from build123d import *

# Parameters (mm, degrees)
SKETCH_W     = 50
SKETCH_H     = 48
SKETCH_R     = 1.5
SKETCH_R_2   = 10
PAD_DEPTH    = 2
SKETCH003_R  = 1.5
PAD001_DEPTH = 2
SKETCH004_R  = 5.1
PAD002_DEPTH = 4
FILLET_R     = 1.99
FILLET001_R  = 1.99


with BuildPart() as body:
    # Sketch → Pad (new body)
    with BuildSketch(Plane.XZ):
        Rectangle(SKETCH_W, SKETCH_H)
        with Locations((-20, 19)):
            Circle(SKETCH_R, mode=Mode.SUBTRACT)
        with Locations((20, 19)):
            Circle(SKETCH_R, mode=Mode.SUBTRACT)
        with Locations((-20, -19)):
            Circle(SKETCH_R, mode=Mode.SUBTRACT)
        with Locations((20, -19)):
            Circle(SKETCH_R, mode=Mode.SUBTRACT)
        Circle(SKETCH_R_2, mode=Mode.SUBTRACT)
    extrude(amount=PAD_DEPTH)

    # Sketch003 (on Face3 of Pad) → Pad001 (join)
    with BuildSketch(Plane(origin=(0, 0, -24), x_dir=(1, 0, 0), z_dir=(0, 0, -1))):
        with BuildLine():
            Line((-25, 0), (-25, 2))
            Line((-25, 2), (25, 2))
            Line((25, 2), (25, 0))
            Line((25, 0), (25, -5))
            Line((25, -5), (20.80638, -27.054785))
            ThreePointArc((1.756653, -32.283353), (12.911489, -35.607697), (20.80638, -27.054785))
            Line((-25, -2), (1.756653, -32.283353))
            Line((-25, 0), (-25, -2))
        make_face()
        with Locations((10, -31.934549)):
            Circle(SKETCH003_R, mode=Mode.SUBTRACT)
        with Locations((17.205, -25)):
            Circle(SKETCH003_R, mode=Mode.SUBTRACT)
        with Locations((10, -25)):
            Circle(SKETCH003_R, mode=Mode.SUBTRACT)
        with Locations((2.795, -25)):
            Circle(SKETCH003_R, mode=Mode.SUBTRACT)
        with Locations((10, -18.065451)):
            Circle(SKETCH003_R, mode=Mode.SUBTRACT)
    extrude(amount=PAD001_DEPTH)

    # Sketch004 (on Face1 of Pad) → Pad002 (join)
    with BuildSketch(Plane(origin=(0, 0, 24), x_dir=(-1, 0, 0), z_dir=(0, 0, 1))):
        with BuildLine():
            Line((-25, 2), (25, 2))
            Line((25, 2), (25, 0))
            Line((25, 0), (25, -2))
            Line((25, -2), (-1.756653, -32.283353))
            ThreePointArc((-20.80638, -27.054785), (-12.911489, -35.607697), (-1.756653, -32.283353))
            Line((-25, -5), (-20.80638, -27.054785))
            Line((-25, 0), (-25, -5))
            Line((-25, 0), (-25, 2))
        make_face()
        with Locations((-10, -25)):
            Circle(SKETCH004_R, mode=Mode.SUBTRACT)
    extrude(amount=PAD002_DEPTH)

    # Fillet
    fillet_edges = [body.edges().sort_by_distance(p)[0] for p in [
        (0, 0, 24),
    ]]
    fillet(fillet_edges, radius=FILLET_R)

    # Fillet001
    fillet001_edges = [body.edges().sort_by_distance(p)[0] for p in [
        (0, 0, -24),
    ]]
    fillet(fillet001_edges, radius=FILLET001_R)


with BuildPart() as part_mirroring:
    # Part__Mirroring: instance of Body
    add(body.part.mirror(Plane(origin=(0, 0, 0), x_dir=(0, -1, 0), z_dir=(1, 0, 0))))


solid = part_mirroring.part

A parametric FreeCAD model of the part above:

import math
import FreeCAD as App
import Part
import Sketcher

V = App.Vector
Q = App.Units.Quantity


def edges_at(feature, points):
    """Names of the edges that pass closest to the given points."""
    edges = feature.Shape.Edges
    near = lambda p: min(range(len(edges)), key=lambda i: edges[i].distToShape(Part.Vertex(*p))[0])
    return sorted({f"Edge{near(p) + 1}" for p in points})


def add_polygon(sketch, points):
    """Adds a closed chain of lines whose ends are joined by coincident constraints."""
    first, n = sketch.GeometryCount, len(points)
    for a, b in zip(points, points[1:] + points[:1]):
        sketch.addGeometry(Part.LineSegment(App.Vector(*a, 0), App.Vector(*b, 0)), False)
    for i in range(n):
        sketch.addConstraint(Sketcher.Constraint("Coincident", first + i, 2, first + (i + 1) % n, 1))

doc = App.newDocument("Part")
body = doc.addObject("PartDesign::Body", "Body")

# Sketch on XZ plane
sketch1 = body.newObject("Sketcher::SketchObject", "Sketch")
sketch1.AttachmentSupport = (doc.getObject("XZ_Plane"), [""])
sketch1.MapMode = "FlatFace"
add_polygon(sketch1, [(-25, 24), (-25, -24), (25, -24), (25, 24)])  # lines 0-3
sketch1.addGeometry(Part.Circle(V(-20, -19, 0), V(0, 0, 1), 1.5), False)  # 4
sketch1.addGeometry(Part.Circle(V(20, -19, 0), V(0, 0, 1), 1.5), False)  # 5
sketch1.addGeometry(Part.Circle(V(-20, 19, 0), V(0, 0, 1), 1.5), False)  # 6
sketch1.addGeometry(Part.Circle(V(0, 0, 0), V(0, 0, 1), 10), False)  # 7
sketch1.addGeometry(Part.Circle(V(20, 19, 0), V(0, 0, 1), 1.5), False)  # 8
sketch1.addConstraint(Sketcher.Constraint("Vertical", 0))
sketch1.addConstraint(Sketcher.Constraint("Horizontal", 1))
sketch1.addConstraint(Sketcher.Constraint("Vertical", 2))
sketch1.addConstraint(Sketcher.Constraint("Horizontal", 3))
sketch1.addConstraint(Sketcher.Constraint("Coincident", 7, 3, -1, 1))
sketch1.addConstraint(Sketcher.Constraint("Equal", 4, 5))
sketch1.addConstraint(Sketcher.Constraint("Equal", 5, 6))
sketch1.addConstraint(Sketcher.Constraint("Equal", 6, 8))
sketch1.addConstraint(Sketcher.Constraint("Symmetric", 5, 3, 6, 3, -1, 1))
sketch1.addConstraint(Sketcher.Constraint("Symmetric", 4, 3, 8, 3, -1, 1))
sketch1.addConstraint(Sketcher.Constraint("Symmetric", 0, 2, 2, 2, -1, 1))
sketch1.addConstraint(Sketcher.Constraint("Symmetric", 4, 3, 5, 3, -2))
sketch1.addConstraint(Sketcher.Constraint("Diameter", 4, Q("3 mm")))
sketch1.addConstraint(Sketcher.Constraint("Diameter", 7, Q("20 mm")))
sketch1.addConstraint(Sketcher.Constraint("DistanceX", 1, 1, 1, 2, Q("50 mm")))
sketch1.addConstraint(Sketcher.Constraint("DistanceY", 0, 2, 0, 1, Q("48 mm")))
sketch1.addConstraint(Sketcher.Constraint("DistanceX", 4, 3, -1, 1, Q("20 mm")))
sketch1.addConstraint(Sketcher.Constraint("DistanceY", 4, 3, -1, 1, Q("19 mm")))
pad1 = body.newObject("PartDesign::Pad", "Pad")
pad1.Profile = sketch1
pad1.Length = 2

# Sketch on XY plane
sketch2 = body.newObject("Sketcher::SketchObject", "Sketch001")
sketch2.AttachmentSupport = (doc.getObject("XY_Plane"), [""])
sketch2.MapMode = "FlatFace"
sketch2.AttachmentOffset = App.Placement(V(0, 0, -24), App.Rotation())
sketch2.addGeometry(Part.LineSegment(V(-25, -2, 0), V(-25, 2, 0)), False)
sketch2.addGeometry(Part.LineSegment(V(-25, 2, 0), V(1.756653, 32.283353, 0)), False)
sketch2.addGeometry(Part.ArcOfCircle(Part.Circle(V(10, 25.000001, 0), V(0, 0, 1), 10.999999), math.radians(10.766012), math.radians(138.538016)), False)
sketch2.addGeometry(Part.LineSegment(V(20.80638, 27.054785, 0), V(25, 5, 0)), False)
sketch2.addGeometry(Part.LineSegment(V(25, 5, 0), V(25, -2, 0)), False)
sketch2.addGeometry(Part.LineSegment(V(25, -2, 0), V(-25, -2, 0)), False)
sketch2.addGeometry(Part.Circle(V(10, 31.934549, 0), V(0, 0, 1), 1.5), False)
sketch2.addGeometry(Part.Circle(V(17.205, 25, 0), V(0, 0, 1), 1.5), False)
sketch2.addGeometry(Part.Circle(V(10, 25, 0), V(0, 0, 1), 1.5), False)
sketch2.addGeometry(Part.Circle(V(10, 18.065451, 0), V(0, 0, 1), 1.5), False)
sketch2.addGeometry(Part.Circle(V(2.795, 25, 0), V(0, 0, 1), 1.5), False)
sketch2.addConstraint(Sketcher.Constraint("Coincident", 0, 2, 1, 1))
sketch2.addConstraint(Sketcher.Constraint("Tangent", 1, 2, 2, 2))
sketch2.addConstraint(Sketcher.Constraint("Tangent", 2, 1, 3, 1))
sketch2.addConstraint(Sketcher.Constraint("Coincident", 3, 2, 4, 1))
sketch2.addConstraint(Sketcher.Constraint("Coincident", 4, 2, 5, 1))
sketch2.addConstraint(Sketcher.Constraint("Coincident", 5, 2, 0, 1))
sketch2.addConstraint(Sketcher.Constraint("Vertical", 0))
sketch2.addConstraint(Sketcher.Constraint("Vertical", 4))
sketch2.addConstraint(Sketcher.Constraint("Horizontal", 5))
sketch2.addConstraint(Sketcher.Constraint("Coincident", 8, 3, 2, 3))
sketch2.addConstraint(Sketcher.Constraint("Equal", 6, 7))
sketch2.addConstraint(Sketcher.Constraint("Equal", 7, 8))
sketch2.addConstraint(Sketcher.Constraint("Equal", 8, 9))
sketch2.addConstraint(Sketcher.Constraint("Equal", 9, 10))
sketch2.addConstraint(Sketcher.Constraint("Symmetric", 0, 2, 4, 2, -1, 1))
sketch2.addConstraint(Sketcher.Constraint("Horizontal", 2, 3, 7, 3))
sketch2.addConstraint(Sketcher.Constraint("Horizontal", 8, 3, 10, 3))
sketch2.addConstraint(Sketcher.Constraint("Vertical", 2, 3, 6, 3))
sketch2.addConstraint(Sketcher.Constraint("Vertical", 8, 3, 9, 3))
sketch2.addConstraint(Sketcher.Constraint("Diameter", 6, Q("3 mm")))
sketch2.addConstraint(Sketcher.Constraint("Radius", 2, Q("10.999999 mm")))
sketch2.addConstraint(Sketcher.Constraint("DistanceX", 5, 2, 5, 1, Q("50 mm")))
sketch2.addConstraint(Sketcher.Constraint("DistanceY", 0, 1, 0, 2, Q("4 mm")))
sketch2.addConstraint(Sketcher.Constraint("DistanceY", 4, 2, 4, 1, Q("7 mm")))
sketch2.addConstraint(Sketcher.Constraint("DistanceX", -1, 1, 2, 3, Q("10 mm")))
sketch2.addConstraint(Sketcher.Constraint("DistanceY", -1, 1, 2, 3, Q("25.000001 mm")))
sketch2.addConstraint(Sketcher.Constraint("DistanceX", 10, 3, 7, 3, Q("14.41 mm")))
sketch2.addConstraint(Sketcher.Constraint("DistanceX", -1, 1, 7, 3, Q("17.205 mm")))
sketch2.addConstraint(Sketcher.Constraint("DistanceY", 9, 3, 6, 3, Q("13.869098 mm")))
sketch2.addConstraint(Sketcher.Constraint("DistanceY", 9, 3, 1, 2, Q("14.217902 mm")))
pad2 = body.newObject("PartDesign::Pad", "Pad001")
pad2.Profile = sketch2
pad2.Length = 2
pad2.Reversed = True

# Sketch on XY plane
sketch3 = body.newObject("Sketcher::SketchObject", "Sketch002")
sketch3.AttachmentSupport = (doc.getObject("XY_Plane"), [""])
sketch3.MapMode = "FlatFace"
sketch3.AttachmentOffset = App.Placement(V(0, 0, 24), App.Rotation())
sketch3.addGeometry(Part.LineSegment(V(-25, -2, 0), V(25, -2, 0)), False)
sketch3.addGeometry(Part.LineSegment(V(25, -2, 0), V(25, 5, 0)), False)
sketch3.addGeometry(Part.LineSegment(V(25, 5, 0), V(20.80638, 27.054785, 0)), False)
sketch3.addGeometry(Part.ArcOfCircle(Part.Circle(V(10, 25.000001, 0), V(0, 0, 1), 10.999999), math.radians(10.766012), math.radians(138.538016)), False)
sketch3.addGeometry(Part.LineSegment(V(1.756653, 32.283353, 0), V(-25, 2, 0)), False)
sketch3.addGeometry(Part.LineSegment(V(-25, 2, 0), V(-25, -2, 0)), False)
sketch3.addGeometry(Part.Circle(V(10, 25, 0), V(0, 0, 1), 5.1), False)
sketch3.addConstraint(Sketcher.Constraint("Coincident", 0, 2, 1, 1))
sketch3.addConstraint(Sketcher.Constraint("Coincident", 1, 2, 2, 1))
sketch3.addConstraint(Sketcher.Constraint("Tangent", 2, 2, 3, 1))
sketch3.addConstraint(Sketcher.Constraint("Tangent", 3, 2, 4, 1))
sketch3.addConstraint(Sketcher.Constraint("Coincident", 4, 2, 5, 1))
sketch3.addConstraint(Sketcher.Constraint("Coincident", 5, 2, 0, 1))
sketch3.addConstraint(Sketcher.Constraint("Horizontal", 0))
sketch3.addConstraint(Sketcher.Constraint("Vertical", 1))
sketch3.addConstraint(Sketcher.Constraint("Vertical", 5))
sketch3.addConstraint(Sketcher.Constraint("Coincident", 6, 3, 3, 3))
sketch3.addConstraint(Sketcher.Constraint("Symmetric", 0, 2, 4, 2, -1, 1))
sketch3.addConstraint(Sketcher.Constraint("Radius", 3, Q("10.999999 mm")))
sketch3.addConstraint(Sketcher.Constraint("Diameter", 6, Q("10.2 mm")))
sketch3.addConstraint(Sketcher.Constraint("DistanceX", 0, 1, 0, 2, Q("50 mm")))
sketch3.addConstraint(Sketcher.Constraint("DistanceY", 1, 1, 1, 2, Q("7 mm")))
sketch3.addConstraint(Sketcher.Constraint("DistanceY", 5, 2, 5, 1, Q("4 mm")))
sketch3.addConstraint(Sketcher.Constraint("DistanceX", -1, 1, 3, 3, Q("10 mm")))
sketch3.addConstraint(Sketcher.Constraint("DistanceY", -1, 1, 3, 3, Q("25.000001 mm")))
pad3 = body.newObject("PartDesign::Pad", "Pad002")
pad3.Profile = sketch3
pad3.Length = 4
doc.recompute()

fillet = body.newObject("PartDesign::Fillet", "Fillet")
fillet.Base = (pad3, edges_at(pad3, [(0, 0, 24)]))
fillet.Radius = 1.99
doc.recompute()

fillet2 = body.newObject("PartDesign::Fillet", "Fillet001")
fillet2.Base = (fillet, edges_at(fillet, [(0, 0, -24)]))
fillet2.Radius = 1.99
body2 = doc.addObject("PartDesign::Body", "Body001")
doc.recompute()

mirroring = doc.addObject("Part::Mirroring", "Mirroring")
mirroring.Source = body
mirroring.Base = V(0, 0, 0)
mirroring.Normal = V(1, 0, 0)
body2.BaseFeature = mirroring
doc.recompute()
body.Visibility = False
mirroring.Visibility = False

doc.recompute()
